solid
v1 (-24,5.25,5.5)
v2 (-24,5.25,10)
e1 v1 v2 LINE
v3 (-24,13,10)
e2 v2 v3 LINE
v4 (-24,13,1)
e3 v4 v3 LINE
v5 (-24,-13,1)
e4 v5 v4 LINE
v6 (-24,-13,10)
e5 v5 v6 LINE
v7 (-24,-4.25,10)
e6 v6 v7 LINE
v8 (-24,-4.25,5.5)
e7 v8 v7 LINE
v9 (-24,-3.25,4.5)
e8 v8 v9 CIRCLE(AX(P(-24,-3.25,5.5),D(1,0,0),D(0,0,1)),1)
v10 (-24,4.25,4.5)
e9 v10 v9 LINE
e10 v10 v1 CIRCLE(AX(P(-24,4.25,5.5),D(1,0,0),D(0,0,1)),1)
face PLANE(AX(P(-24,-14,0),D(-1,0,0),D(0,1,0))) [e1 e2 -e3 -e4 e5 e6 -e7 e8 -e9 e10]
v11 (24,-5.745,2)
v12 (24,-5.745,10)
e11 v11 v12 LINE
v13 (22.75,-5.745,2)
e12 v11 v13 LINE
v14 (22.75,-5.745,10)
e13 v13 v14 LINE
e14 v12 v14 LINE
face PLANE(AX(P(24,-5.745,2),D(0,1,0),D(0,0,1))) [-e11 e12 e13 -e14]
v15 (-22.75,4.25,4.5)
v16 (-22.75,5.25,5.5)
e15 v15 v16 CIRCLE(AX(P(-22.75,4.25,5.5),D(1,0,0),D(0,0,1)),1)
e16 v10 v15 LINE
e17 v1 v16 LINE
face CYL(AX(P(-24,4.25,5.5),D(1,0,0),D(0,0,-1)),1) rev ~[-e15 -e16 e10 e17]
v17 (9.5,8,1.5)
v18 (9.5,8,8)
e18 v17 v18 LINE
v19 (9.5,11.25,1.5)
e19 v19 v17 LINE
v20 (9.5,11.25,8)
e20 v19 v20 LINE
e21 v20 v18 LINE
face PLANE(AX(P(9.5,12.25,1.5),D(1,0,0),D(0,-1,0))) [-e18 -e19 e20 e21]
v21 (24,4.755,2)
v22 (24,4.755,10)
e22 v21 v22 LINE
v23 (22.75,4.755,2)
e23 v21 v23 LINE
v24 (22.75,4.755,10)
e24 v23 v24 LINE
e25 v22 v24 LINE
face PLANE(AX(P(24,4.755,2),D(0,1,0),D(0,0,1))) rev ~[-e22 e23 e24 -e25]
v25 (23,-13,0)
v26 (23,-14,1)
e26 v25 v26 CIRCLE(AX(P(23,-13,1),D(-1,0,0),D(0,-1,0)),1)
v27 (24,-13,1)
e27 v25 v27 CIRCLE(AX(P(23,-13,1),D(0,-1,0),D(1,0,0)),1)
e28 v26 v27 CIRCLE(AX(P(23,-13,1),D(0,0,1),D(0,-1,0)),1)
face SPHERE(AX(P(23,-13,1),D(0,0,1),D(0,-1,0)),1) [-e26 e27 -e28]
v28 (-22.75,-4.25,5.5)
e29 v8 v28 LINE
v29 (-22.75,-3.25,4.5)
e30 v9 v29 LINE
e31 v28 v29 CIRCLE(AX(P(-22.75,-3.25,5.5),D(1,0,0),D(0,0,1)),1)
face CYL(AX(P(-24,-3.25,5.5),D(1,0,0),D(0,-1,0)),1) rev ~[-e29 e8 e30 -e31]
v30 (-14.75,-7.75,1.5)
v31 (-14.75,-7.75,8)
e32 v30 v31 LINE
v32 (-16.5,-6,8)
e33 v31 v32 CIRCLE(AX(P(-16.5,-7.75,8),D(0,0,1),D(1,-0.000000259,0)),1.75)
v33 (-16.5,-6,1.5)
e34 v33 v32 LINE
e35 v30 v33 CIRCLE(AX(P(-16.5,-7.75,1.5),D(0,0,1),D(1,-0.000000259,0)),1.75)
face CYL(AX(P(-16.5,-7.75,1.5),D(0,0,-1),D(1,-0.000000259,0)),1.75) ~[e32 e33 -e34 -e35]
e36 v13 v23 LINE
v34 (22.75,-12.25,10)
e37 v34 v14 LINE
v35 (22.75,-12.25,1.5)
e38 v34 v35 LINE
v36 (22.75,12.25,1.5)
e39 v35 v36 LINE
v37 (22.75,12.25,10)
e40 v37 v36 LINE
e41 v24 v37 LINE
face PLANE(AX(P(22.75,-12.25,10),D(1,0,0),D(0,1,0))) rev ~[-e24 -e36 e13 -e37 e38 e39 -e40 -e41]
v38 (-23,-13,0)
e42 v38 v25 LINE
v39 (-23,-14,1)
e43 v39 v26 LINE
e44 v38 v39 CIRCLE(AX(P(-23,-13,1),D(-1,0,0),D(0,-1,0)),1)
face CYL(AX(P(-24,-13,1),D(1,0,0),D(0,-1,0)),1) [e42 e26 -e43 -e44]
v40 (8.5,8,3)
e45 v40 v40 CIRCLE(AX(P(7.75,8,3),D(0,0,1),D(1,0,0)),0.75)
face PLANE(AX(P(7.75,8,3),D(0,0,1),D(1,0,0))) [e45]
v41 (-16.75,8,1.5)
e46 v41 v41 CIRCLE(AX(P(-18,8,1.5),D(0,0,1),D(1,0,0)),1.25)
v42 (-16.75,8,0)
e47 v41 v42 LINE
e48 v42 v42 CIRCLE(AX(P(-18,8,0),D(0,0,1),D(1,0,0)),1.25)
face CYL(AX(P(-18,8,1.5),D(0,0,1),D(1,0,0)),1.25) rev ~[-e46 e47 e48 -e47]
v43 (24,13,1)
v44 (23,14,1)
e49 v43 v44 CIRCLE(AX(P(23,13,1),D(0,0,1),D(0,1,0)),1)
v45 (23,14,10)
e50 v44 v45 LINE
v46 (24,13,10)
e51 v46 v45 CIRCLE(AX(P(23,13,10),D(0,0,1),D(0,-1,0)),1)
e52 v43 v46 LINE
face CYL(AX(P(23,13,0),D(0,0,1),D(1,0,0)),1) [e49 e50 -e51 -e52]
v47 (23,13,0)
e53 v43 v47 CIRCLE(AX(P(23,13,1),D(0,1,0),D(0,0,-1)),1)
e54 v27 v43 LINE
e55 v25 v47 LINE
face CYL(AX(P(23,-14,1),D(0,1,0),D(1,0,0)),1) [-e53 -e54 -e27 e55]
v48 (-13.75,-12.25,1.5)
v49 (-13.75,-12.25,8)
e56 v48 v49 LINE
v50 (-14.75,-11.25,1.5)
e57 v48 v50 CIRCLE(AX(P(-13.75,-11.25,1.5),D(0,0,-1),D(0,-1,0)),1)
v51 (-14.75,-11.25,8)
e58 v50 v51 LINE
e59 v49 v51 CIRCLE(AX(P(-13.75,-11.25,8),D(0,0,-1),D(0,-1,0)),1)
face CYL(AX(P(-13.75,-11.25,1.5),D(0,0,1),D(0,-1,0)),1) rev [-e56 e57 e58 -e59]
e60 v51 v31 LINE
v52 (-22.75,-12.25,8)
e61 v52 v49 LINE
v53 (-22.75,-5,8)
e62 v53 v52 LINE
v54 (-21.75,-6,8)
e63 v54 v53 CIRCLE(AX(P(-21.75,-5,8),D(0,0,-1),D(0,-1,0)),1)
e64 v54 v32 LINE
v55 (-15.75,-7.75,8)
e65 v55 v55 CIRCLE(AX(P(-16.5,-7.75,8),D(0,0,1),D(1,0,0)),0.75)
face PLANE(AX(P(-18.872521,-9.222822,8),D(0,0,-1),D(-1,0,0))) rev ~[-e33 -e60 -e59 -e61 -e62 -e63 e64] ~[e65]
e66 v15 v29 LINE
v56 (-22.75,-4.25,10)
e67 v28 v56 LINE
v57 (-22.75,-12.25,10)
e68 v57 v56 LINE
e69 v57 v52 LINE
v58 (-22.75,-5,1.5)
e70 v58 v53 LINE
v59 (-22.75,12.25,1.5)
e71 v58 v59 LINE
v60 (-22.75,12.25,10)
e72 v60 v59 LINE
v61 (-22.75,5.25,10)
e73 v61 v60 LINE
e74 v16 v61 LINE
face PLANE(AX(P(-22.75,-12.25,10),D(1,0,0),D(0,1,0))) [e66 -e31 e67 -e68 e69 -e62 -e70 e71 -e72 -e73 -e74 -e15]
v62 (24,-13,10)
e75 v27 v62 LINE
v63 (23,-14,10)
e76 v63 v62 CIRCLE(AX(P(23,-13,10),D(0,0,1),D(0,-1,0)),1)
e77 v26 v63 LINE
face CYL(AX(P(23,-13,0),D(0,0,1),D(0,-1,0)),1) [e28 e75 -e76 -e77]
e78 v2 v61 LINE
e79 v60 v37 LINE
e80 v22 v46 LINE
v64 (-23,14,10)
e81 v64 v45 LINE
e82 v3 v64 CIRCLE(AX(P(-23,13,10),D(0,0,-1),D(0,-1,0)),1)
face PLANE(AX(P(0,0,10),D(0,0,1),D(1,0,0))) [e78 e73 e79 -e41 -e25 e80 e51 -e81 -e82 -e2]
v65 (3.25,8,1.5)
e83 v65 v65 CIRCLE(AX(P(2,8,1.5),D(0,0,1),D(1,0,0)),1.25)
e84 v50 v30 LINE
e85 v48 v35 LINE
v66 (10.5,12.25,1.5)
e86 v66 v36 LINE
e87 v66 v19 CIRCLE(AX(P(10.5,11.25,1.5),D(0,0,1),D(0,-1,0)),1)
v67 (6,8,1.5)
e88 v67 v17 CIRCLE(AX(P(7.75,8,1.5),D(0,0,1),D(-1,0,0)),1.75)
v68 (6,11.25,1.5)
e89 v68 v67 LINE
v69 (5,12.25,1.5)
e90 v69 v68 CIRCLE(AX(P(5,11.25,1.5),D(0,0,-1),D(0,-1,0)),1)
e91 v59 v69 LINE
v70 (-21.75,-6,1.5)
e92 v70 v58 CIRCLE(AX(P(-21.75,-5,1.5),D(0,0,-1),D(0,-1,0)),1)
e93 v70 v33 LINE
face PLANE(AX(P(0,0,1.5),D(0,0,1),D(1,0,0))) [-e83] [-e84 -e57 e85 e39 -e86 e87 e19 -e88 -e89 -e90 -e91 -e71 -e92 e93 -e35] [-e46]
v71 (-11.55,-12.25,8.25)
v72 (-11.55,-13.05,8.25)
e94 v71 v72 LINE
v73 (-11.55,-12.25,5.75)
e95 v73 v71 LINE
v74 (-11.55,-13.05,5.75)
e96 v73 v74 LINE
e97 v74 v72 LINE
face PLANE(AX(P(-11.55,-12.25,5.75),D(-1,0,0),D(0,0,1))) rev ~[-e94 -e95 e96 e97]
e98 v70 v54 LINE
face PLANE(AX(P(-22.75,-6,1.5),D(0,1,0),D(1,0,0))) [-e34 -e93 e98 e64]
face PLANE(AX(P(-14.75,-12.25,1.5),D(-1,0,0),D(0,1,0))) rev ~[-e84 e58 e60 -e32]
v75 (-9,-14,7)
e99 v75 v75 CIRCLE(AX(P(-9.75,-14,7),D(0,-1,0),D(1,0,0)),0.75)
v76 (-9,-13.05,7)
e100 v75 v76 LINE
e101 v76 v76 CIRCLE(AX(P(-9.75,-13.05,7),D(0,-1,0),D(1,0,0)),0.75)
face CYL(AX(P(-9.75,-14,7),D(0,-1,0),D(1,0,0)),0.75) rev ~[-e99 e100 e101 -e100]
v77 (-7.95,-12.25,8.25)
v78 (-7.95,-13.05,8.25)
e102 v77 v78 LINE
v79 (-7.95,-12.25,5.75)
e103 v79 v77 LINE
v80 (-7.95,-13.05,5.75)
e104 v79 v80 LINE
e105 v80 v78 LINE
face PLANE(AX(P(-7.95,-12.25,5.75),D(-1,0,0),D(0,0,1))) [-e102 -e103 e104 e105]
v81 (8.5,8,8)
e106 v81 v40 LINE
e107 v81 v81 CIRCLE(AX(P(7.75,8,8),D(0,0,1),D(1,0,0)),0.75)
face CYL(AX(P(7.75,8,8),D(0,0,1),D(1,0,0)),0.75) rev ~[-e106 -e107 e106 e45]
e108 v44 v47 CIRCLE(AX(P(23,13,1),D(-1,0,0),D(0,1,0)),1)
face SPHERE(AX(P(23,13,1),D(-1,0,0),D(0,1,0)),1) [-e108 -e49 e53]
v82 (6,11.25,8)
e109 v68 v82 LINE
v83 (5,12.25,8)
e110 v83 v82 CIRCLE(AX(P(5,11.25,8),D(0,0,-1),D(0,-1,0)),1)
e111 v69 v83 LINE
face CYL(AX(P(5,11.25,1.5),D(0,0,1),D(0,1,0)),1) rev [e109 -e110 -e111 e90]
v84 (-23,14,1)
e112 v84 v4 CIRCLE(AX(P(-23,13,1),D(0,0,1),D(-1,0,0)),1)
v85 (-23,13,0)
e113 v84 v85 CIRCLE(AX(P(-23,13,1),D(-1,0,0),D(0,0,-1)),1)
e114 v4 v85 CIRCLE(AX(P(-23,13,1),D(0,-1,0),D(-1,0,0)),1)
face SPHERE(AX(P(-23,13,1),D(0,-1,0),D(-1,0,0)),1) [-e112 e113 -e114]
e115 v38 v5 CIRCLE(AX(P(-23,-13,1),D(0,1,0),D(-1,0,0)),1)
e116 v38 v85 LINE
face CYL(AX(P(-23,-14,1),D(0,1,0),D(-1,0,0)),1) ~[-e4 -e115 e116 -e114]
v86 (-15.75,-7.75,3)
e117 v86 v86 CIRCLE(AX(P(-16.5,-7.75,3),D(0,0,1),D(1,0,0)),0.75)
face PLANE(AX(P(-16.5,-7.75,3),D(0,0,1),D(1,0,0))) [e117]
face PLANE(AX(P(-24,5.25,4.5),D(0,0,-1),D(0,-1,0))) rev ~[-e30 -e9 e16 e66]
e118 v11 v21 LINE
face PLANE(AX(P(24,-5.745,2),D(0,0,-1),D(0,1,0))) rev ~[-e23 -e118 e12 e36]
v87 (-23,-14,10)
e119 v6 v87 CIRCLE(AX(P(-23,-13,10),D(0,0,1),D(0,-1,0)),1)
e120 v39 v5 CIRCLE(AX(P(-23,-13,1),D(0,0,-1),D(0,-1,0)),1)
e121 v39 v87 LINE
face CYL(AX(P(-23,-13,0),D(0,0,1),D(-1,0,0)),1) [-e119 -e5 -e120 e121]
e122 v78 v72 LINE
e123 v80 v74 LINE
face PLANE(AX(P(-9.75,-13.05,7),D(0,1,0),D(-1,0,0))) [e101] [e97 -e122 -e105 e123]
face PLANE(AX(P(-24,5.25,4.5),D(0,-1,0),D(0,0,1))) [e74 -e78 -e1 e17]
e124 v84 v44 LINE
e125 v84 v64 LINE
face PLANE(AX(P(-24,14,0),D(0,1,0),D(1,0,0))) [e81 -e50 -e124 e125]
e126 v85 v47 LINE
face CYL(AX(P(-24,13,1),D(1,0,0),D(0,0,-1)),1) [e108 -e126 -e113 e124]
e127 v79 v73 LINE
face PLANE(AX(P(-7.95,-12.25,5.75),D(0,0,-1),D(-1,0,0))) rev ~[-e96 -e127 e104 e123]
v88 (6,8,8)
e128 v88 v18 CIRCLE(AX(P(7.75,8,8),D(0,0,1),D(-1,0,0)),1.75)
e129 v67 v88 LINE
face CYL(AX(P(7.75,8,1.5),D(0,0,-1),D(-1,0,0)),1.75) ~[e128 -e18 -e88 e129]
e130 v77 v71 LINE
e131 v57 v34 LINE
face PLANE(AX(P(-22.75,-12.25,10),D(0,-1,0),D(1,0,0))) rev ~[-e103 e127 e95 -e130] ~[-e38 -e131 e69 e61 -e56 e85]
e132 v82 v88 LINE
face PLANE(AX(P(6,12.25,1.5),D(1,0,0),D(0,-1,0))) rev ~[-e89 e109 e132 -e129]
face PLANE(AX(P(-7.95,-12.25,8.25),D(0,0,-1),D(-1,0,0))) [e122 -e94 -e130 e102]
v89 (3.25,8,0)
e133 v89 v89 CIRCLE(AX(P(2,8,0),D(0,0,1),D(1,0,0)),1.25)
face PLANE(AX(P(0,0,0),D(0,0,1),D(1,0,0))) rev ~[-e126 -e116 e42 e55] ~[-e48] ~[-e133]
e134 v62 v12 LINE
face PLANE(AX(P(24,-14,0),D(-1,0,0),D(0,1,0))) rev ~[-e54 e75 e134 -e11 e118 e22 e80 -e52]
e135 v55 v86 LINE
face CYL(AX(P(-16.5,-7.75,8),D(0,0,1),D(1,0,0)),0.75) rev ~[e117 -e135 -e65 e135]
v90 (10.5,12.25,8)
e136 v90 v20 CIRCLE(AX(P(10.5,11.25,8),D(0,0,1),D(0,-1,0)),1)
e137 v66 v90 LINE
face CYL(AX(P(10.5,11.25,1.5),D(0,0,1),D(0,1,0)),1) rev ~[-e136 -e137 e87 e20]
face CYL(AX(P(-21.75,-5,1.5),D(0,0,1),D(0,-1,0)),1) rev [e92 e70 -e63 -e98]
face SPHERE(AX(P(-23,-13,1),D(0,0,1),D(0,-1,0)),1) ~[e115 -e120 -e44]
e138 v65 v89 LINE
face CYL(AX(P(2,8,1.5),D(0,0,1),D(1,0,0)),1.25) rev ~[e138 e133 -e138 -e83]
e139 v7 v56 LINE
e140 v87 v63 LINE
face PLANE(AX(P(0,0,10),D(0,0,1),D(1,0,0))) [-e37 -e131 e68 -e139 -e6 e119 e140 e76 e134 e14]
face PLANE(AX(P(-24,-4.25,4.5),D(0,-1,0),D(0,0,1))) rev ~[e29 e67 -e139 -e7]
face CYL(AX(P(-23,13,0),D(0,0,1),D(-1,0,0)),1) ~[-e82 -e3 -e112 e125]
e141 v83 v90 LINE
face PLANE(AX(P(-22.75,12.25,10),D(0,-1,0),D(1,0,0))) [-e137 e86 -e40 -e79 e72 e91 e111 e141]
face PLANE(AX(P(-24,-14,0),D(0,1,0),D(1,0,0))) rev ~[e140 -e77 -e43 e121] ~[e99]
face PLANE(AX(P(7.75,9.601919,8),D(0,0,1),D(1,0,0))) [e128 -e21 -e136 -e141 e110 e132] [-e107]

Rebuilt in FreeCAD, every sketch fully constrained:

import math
import FreeCAD as App
import Part
import Sketcher

V = App.Vector


def edges_at(feature, points):
    """Names of the edges that pass closest to the given points."""
    edges = feature.Shape.Edges
    near = lambda p: min(range(len(edges)), key=lambda i: edges[i].distToShape(Part.Vertex(*p))[0])
    return sorted({f"Edge{near(p) + 1}" for p in points})

doc = App.newDocument("Part")
body = doc.addObject("PartDesign::Body", "Body")

sketch1 = doc.addObject("Sketcher::SketchObject", "Sketch")
body.addObject(sketch1)
sketch1.AttachmentSupport = (doc.XY_Plane, [""])
sketch1.MapMode = "FlatFace"
sketch1.addGeometry([
    Part.LineSegment(V(-24, 14, 0), V(-24, -14, 0)),
    Part.LineSegment(V(-24, -14, 0), V(24, -14, 0)),
    Part.LineSegment(V(24, -14, 0), V(24, 14, 0)),
    Part.LineSegment(V(24, 14, 0), V(-24, 14, 0)),
], False)
sketch1.addConstraint([
    Sketcher.Constraint("Coincident", 0, 2, 1, 1),
    Sketcher.Constraint("Coincident", 1, 2, 2, 1),
    Sketcher.Constraint("Coincident", 2, 2, 3, 1),
    Sketcher.Constraint("Coincident", 3, 2, 0, 1),
    Sketcher.Constraint("Vertical", 0),
    Sketcher.Constraint("Horizontal", 1),
    Sketcher.Constraint("Vertical", 2),
    Sketcher.Constraint("Horizontal", 3),
    Sketcher.Constraint("Symmetric", 0, 2, 2, 2, -1, 1),
    Sketcher.Constraint("DistanceX", 1, 1, 1, 2, 48.0),
    Sketcher.Constraint("DistanceY", 0, 2, 0, 1, 28.0),
])
pad1 = doc.addObject("PartDesign::Pad", "Pad")
body.addObject(pad1)
pad1.Profile = sketch1
pad1.Length = 10

sketch2 = doc.addObject("Sketcher::SketchObject", "Sketch001")
body.addObject(sketch2)
sketch2.AttachmentSupport = (doc.XY_Plane, [""])
sketch2.MapMode = "FlatFace"
sketch2.AttachmentOffset = App.Placement(V(0, 0, 10), App.Rotation())
sketch2.addGeometry([
    Part.LineSegment(V(-23, 12, 0), V(-23, -12, 0)),
    Part.LineSegment(V(-23, -12, 0), V(23, -12, 0)),
    Part.LineSegment(V(23, -12, 0), V(23, 12, 0)),
    Part.LineSegment(V(23, 12, 0), V(-23, 12, 0)),
], False)
sketch2.addConstraint([
    Sketcher.Constraint("Coincident", 0, 2, 1, 1),
    Sketcher.Constraint("Coincident", 1, 2, 2, 1),
    Sketcher.Constraint("Coincident", 2, 2, 3, 1),
    Sketcher.Constraint("Coincident", 3, 2, 0, 1),
    Sketcher.Constraint("Vertical", 0),
    Sketcher.Constraint("Horizontal", 1),
    Sketcher.Constraint("Vertical", 2),
    Sketcher.Constraint("Horizontal", 3),
    Sketcher.Constraint("Symmetric", 0, 2, 2, 2, -1, 1),
    Sketcher.Constraint("DistanceX", 1, 1, 1, 2, 45.5),
    Sketcher.Constraint("DistanceY", 0, 2, 0, 1, 24.5),
])
pocket1 = doc.addObject("PartDesign::Pocket", "Pocket")
body.addObject(pocket1)
pocket1.Profile = sketch2
pocket1.Length = 8.5

sketch3 = doc.addObject("Sketcher::SketchObject", "Sketch002")
body.addObject(sketch3)
sketch3.AttachmentSupport = (doc.XY_Plane, [""])
sketch3.MapMode = "FlatFace"
sketch3.AttachmentOffset = App.Placement(V(0, 0, 1.5), App.Rotation())
sketch3.addGeometry([
    Part.LineSegment(V(-16.5, -6, 0), V(-22.8, -6, 0)),
    Part.LineSegment(V(-22.8, -6, 0), V(-22.8, -12.2, 0)),
    Part.LineSegment(V(-22.8, -12.2, 0), V(-14.8, -12.2, 0)),
    Part.LineSegment(V(-14.8, -12.2, 0), V(-14.8, -7.8, 0)),
    Part.ArcOfCircle(Part.Circle(V(-16.5, -7.7, 0), V(0, 0, 1), 1.7), math.radians(0), math.radians(90)),
    Part.LineSegment(V(6, 12.2, 0), V(6, 8, 0)),
    Part.ArcOfCircle(Part.Circle(V(7.8, 8, 0), V(0, 0, 1), 1.8), math.radians(180), math.radians(360)),
    Part.LineSegment(V(9.5, 8, 0), V(9.5, 12.2, 0)),
    Part.LineSegment(V(9.5, 12.2, 0), V(6, 12.2, 0)),
], False)
sketch3.addConstraint([
    Sketcher.Constraint("Coincident", 0, 2, 1, 1),
    Sketcher.Constraint("Coincident", 1, 2, 2, 1),
    Sketcher.Constraint("Coincident", 2, 2, 3, 1),
    Sketcher.Constraint("Tangent", 3, 2, 4, 1),
    Sketcher.Constraint("Tangent", 4, 2, 0, 1),
    Sketcher.Constraint("Tangent", 5, 2, 6, 1),
    Sketcher.Constraint("Tangent", 6, 2, 7, 1),
    Sketcher.Constraint("Coincident", 7, 2, 8, 1),
    Sketcher.Constraint("Coincident", 8, 2, 5, 1),
    Sketcher.Constraint("Horizontal", 0),
    Sketcher.Constraint("Vertical", 1),
    Sketcher.Constraint("Horizontal", 2),
    Sketcher.Constraint("Vertical", 3),
    Sketcher.Constraint("Vertical", 5),
    Sketcher.Constraint("Vertical", 7),
    Sketcher.Constraint("Horizontal", 8),
    Sketcher.Constraint("Equal", 4, 6),
    Sketcher.Constraint("Equal", 0, 1),
    Sketcher.Constraint("DistanceX", 2, 1, 2, 2, 8.0),
    Sketcher.Constraint("Radius", 4, 1.75),
    Sketcher.Constraint("DistanceY", -1, 1, 6, 3, 8.0),
    Sketcher.Constraint("DistanceY", 0, 2, -1, 1, 6.0),
    Sketcher.Constraint("DistanceX", -1, 1, 5, 2, 6.0),
    Sketcher.Constraint("DistanceX", 4, 2, 6, 2, 26.0),
    Sketcher.Constraint("DistanceY", 3, 2, 7, 2, 20.0),
])
pad2 = doc.addObject("PartDesign::Pad", "Pad001")
body.addObject(pad2)
pad2.Profile = sketch3
pad2.Length = 6.5

sketch4 = doc.addObject("Sketcher::SketchObject", "Sketch003")
body.addObject(sketch4)
sketch4.AttachmentSupport = (doc.XY_Plane, [""])
sketch4.MapMode = "FlatFace"
sketch4.AttachmentOffset = App.Placement(V(0, 0, 8), App.Rotation())
sketch4.addGeometry([
    Part.Circle(V(-16.5, -7.8, 0), V(0, 0, 1), 0.8),
    Part.Circle(V(7.8, 8, 0), V(0, 0, 1), 0.8),
], False)
sketch4.addConstraint([
    Sketcher.Constraint("Equal", 0, 1),
    Sketcher.Constraint("Diameter", 0, 1.5),
    Sketcher.Constraint("DistanceY", -1, 1, 1, 3, 8.0),
    Sketcher.Constraint("DistanceX", 0, 3, -1, 1, 16.5),
    Sketcher.Constraint("DistanceY", 0, 3, -1, 1, 7.75),
    Sketcher.Constraint("DistanceX", -1, 1, 1, 3, 7.75),
])
pocket2 = doc.addObject("PartDesign::Pocket", "Pocket001")
body.addObject(pocket2)
pocket2.Profile = sketch4
pocket2.Length = 5

sketch5 = doc.addObject("Sketcher::SketchObject", "Sketch004")
body.addObject(sketch5)
sketch5.AttachmentSupport = (doc.YZ_Plane, [""])
sketch5.MapMode = "FlatFace"
sketch5.AttachmentOffset = App.Placement(V(0, 0, -24), App.Rotation())
sketch5.addGeometry([
    Part.LineSegment(V(5, 10, 0), V(5, 4, 0)),
    Part.LineSegment(V(5, 4, 0), V(-4, 4, 0)),
    Part.LineSegment(V(-4, 4, 0), V(-4, 10, 0)),
    Part.LineSegment(V(-4, 10, 0), V(5, 10, 0)),
], False)
sketch5.addConstraint([
    Sketcher.Constraint("Coincident", 0, 2, 1, 1),
    Sketcher.Constraint("Coincident", 1, 2, 2, 1),
    Sketcher.Constraint("Coincident", 2, 2, 3, 1),
    Sketcher.Constraint("Coincident", 3, 2, 0, 1),
    Sketcher.Constraint("Vertical", 0),
    Sketcher.Constraint("Horizontal", 1),
    Sketcher.Constraint("Vertical", 2),
    Sketcher.Constraint("Horizontal", 3),
    Sketcher.Constraint("DistanceX", 1, 2, 1, 1, 9.5),
    Sketcher.Constraint("DistanceY", 0, 2, 0, 1, 5.5),
    Sketcher.Constraint("DistanceY", -1, 1, 2, 2, 10.0),
    Sketcher.Constraint("DistanceX", -1, 1, 0, 2, 5.25),
])
pocket3 = doc.addObject("PartDesign::Pocket", "Pocket002")
body.addObject(pocket3)
pocket3.Profile = sketch5
pocket3.Length = 1.25
pocket3.Reversed = True

sketch6 = doc.addObject("Sketcher::SketchObject", "Sketch005")
body.addObject(sketch6)
sketch6.AttachmentSupport = (doc.YZ_Plane, [""])
sketch6.MapMode = "FlatFace"
sketch6.AttachmentOffset = App.Placement(V(0, 0, 24), App.Rotation())
sketch6.addGeometry([
    Part.LineSegment(V(-6, 10, 0), V(-6, 2, 0)),
    Part.LineSegment(V(-6, 2, 0), V(5, 2, 0)),
    Part.LineSegment(V(5, 2, 0), V(5, 10, 0)),
    Part.LineSegment(V(5, 10, 0), V(-6, 10, 0)),
], False)
sketch6.addConstraint([
    Sketcher.Constraint("Coincident", 0, 2, 1, 1),
    Sketcher.Constraint("Coincident", 1, 2, 2, 1),
    Sketcher.Constraint("Coincident", 2, 2, 3, 1),
    Sketcher.Constraint("Coincident", 3, 2, 0, 1),
    Sketcher.Constraint("Vertical", 0),
    Sketcher.Constraint("Horizontal", 1),
    Sketcher.Constraint("Vertical", 2),
    Sketcher.Constraint("Horizontal", 3),
    Sketcher.Constraint("DistanceY", 0, 2, 0, 1, 8.0),
    Sketcher.Constraint("DistanceX", 1, 1, 1, 2, 10.5),
    Sketcher.Constraint("DistanceY", -1, 1, 0, 2, 2.0),
    Sketcher.Constraint("DistanceX", 0, 2, -1, 1, 5.745),
])
pocket4 = doc.addObject("PartDesign::Pocket", "Pocket003")
body.addObject(pocket4)
pocket4.Profile = sketch6
pocket4.Length = 1.25
doc.recompute()

fillet = doc.addObject("PartDesign::Fillet", "Fillet")
body.addObject(fillet)
fillet.Base = (pocket4, edges_at(pocket4, [
    (-23.375, 5.25, 4.5),
    (-23.375, -4.25, 4.5),
    (-22.75, -6, 4.75),
    (-14.75, -12.25, 4.75),
    (6, 12.25, 4.75),
    (9.5, 12.25, 4.75),
]))
fillet.Radius = 1
doc.recompute()

fillet2 = doc.addObject("PartDesign::Fillet", "Fillet001")
body.addObject(fillet2)
fillet2.Base = (fillet, edges_at(fillet, [
    (-24, -14, 5),
    (24, -14, 5),
    (0, -14, 0),
    (-24, 0, 0),
    (-24, 14, 5),
    (0, 14, 0),
    (24, 14, 5),
    (24, 0, 0),
]))
fillet2.Radius = 1

sketch7 = doc.addObject("Sketcher::SketchObject", "Sketch006")
body.addObject(sketch7)
sketch7.AttachmentSupport = (doc.XZ_Plane, [""])
sketch7.MapMode = "FlatFace"
sketch7.AttachmentOffset = App.Placement(V(0, 0, 14), App.Rotation())
sketch7.addGeometry(Part.Circle(V(-9.8, 7, 0), V(0, 0, 1), 0.8), False)
sketch7.addConstraint([
    Sketcher.Constraint("Diameter", 0, 1.5),
    Sketcher.Constraint("DistanceY", -1, 1, 0, 3, 7.0),
    Sketcher.Constraint("DistanceX", 0, 3, -1, 1, 9.75),
])
pocket5 = doc.addObject("PartDesign::Pocket", "Pocket004")
body.addObject(pocket5)
pocket5.Profile = sketch7
pocket5.Length = 1.75

sketch8 = doc.addObject("Sketcher::SketchObject", "Sketch007")
body.addObject(sketch8)
sketch8.AttachmentSupport = (doc.XZ_Plane, [""])
sketch8.MapMode = "FlatFace"
sketch8.AttachmentOffset = App.Placement(V(0, 0, 12.25), App.Rotation())
sketch8.addGeometry([
    Part.LineSegment(V(-8, 8.2, 0), V(-8, 5.8, 0)),
    Part.LineSegment(V(-8, 5.8, 0), V(-11.6, 5.8, 0)),
    Part.LineSegment(V(-11.6, 5.8, 0), V(-11.6, 8.2, 0)),
    Part.LineSegment(V(-11.6, 8.2, 0), V(-8, 8.2, 0)),
], False)
sketch8.addConstraint([
    Sketcher.Constraint("Coincident", 0, 2, 1, 1),
    Sketcher.Constraint("Coincident", 1, 2, 2, 1),
    Sketcher.Constraint("Coincident", 2, 2, 3, 1),
    Sketcher.Constraint("Coincident", 3, 2, 0, 1),
    Sketcher.Constraint("Vertical", 0),
    Sketcher.Constraint("Horizontal", 1),
    Sketcher.Constraint("Vertical", 2),
    Sketcher.Constraint("Horizontal", 3),
    Sketcher.Constraint("DistanceX", 1, 2, 1, 1, 3.6),
    Sketcher.Constraint("DistanceY", 0, 2, 0, 1, 2.5),
    Sketcher.Constraint("DistanceX", 0, 2, -1, 1, 7.95),
    Sketcher.Constraint("DistanceY", -1, 1, 0, 2, 5.75),
])
pocket6 = doc.addObject("PartDesign::Pocket", "Pocket005")
body.addObject(pocket6)
pocket6.Profile = sketch8
pocket6.Length = 0.8
pocket6.Reversed = True

sketch9 = doc.addObject("Sketcher::SketchObject", "Sketch008")
body.addObject(sketch9)
sketch9.AttachmentSupport = (doc.XY_Plane, [""])
sketch9.MapMode = "FlatFace"
sketch9.AttachmentOffset = App.Placement(V(0, 0, 1.5), App.Rotation())
sketch9.addGeometry([
    Part.Circle(V(-18, 8, 0), V(0, 0, 1), 1.2),
    Part.Circle(V(2, 8, 0), V(0, 0, 1), 1.2),
], False)
sketch9.addConstraint([
    Sketcher.Constraint("Equal", 0, 1),
    Sketcher.Constraint("Horizontal", 0, 3, 1, 3),
    Sketcher.Constraint("Diameter", 0, 2.5),
    Sketcher.Constraint("DistanceX", 0, 3, -1, 1, 18.0),
    Sketcher.Constraint("DistanceY", -1, 1, 0, 3, 8.0),
    Sketcher.Constraint("DistanceX", -1, 1, 1, 3, 2.0),
])
pocket7 = doc.addObject("PartDesign::Pocket", "Pocket006")
body.addObject(pocket7)
pocket7.Profile = sketch9
pocket7.Type = "ThroughAll"

doc.recompute()
